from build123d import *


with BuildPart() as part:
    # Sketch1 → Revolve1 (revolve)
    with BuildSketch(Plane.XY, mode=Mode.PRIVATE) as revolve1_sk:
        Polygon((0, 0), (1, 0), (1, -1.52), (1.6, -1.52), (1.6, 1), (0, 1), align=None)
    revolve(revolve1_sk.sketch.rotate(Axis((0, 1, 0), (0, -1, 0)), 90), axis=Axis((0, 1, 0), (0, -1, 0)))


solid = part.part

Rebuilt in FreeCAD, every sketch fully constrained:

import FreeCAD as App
import Part
import Sketcher
from FreeCAD import Vector


def add_polygon(sketch, points):
    """Adds a closed chain of lines whose ends are joined by coincident constraints."""
    first, n = sketch.GeometryCount, len(points)
    for a, b in zip(points, points[1:] + points[:1]):
        sketch.addGeometry(Part.LineSegment(App.Vector(*a, 0), App.Vector(*b, 0)), False)
    for i in range(n):
        sketch.addConstraint(Sketcher.Constraint("Coincident", first + i, 2, first + (i + 1) % n, 1))

doc = App.newDocument("Part")
body = doc.addObject("PartDesign::Body", "Body")

sketch1 = body.newObject("Sketcher::SketchObject", "Sketch")
sketch1.AttachmentSupport = (doc.getObject("XY_Plane"), [""])
sketch1.MapMode = "FlatFace"
add_polygon(sketch1, [(0, 0), (1, 0), (1, -1.5), (1.6, -1.5), (1.6, 1), (0, 1)])
sketch1.addConstraint(Sketcher.Constraint("Horizontal", 0))
sketch1.addConstraint(Sketcher.Constraint("Vertical", 1))
sketch1.addConstraint(Sketcher.Constraint("Horizontal", 2))
sketch1.addConstraint(Sketcher.Constraint("Vertical", 3))
sketch1.addConstraint(Sketcher.Constraint("Horizontal", 4))
sketch1.addConstraint(Sketcher.Constraint("Vertical", 5))
sketch1.addConstraint(Sketcher.Constraint("Coincident", 5, 2, -1, 1))
sketch1.addConstraint(Sketcher.Constraint("Equal", 0, 5))
sketch1.addConstraint(Sketcher.Constraint("DistanceX", 0, 1, 0, 2, 1.0))
sketch1.addConstraint(Sketcher.Constraint("DistanceX", 2, 1, 2, 2, 0.6))
sketch1.addConstraint(Sketcher.Constraint("DistanceY", 1, 2, 1, 1, 1.52))
revolution = body.newObject("PartDesign::Revolution", "Revolution")
revolution.Profile = sketch1
revolution.ReferenceAxis = (sketch1, ["V_Axis"])
revolution.Angle = 360

doc.recompute()
